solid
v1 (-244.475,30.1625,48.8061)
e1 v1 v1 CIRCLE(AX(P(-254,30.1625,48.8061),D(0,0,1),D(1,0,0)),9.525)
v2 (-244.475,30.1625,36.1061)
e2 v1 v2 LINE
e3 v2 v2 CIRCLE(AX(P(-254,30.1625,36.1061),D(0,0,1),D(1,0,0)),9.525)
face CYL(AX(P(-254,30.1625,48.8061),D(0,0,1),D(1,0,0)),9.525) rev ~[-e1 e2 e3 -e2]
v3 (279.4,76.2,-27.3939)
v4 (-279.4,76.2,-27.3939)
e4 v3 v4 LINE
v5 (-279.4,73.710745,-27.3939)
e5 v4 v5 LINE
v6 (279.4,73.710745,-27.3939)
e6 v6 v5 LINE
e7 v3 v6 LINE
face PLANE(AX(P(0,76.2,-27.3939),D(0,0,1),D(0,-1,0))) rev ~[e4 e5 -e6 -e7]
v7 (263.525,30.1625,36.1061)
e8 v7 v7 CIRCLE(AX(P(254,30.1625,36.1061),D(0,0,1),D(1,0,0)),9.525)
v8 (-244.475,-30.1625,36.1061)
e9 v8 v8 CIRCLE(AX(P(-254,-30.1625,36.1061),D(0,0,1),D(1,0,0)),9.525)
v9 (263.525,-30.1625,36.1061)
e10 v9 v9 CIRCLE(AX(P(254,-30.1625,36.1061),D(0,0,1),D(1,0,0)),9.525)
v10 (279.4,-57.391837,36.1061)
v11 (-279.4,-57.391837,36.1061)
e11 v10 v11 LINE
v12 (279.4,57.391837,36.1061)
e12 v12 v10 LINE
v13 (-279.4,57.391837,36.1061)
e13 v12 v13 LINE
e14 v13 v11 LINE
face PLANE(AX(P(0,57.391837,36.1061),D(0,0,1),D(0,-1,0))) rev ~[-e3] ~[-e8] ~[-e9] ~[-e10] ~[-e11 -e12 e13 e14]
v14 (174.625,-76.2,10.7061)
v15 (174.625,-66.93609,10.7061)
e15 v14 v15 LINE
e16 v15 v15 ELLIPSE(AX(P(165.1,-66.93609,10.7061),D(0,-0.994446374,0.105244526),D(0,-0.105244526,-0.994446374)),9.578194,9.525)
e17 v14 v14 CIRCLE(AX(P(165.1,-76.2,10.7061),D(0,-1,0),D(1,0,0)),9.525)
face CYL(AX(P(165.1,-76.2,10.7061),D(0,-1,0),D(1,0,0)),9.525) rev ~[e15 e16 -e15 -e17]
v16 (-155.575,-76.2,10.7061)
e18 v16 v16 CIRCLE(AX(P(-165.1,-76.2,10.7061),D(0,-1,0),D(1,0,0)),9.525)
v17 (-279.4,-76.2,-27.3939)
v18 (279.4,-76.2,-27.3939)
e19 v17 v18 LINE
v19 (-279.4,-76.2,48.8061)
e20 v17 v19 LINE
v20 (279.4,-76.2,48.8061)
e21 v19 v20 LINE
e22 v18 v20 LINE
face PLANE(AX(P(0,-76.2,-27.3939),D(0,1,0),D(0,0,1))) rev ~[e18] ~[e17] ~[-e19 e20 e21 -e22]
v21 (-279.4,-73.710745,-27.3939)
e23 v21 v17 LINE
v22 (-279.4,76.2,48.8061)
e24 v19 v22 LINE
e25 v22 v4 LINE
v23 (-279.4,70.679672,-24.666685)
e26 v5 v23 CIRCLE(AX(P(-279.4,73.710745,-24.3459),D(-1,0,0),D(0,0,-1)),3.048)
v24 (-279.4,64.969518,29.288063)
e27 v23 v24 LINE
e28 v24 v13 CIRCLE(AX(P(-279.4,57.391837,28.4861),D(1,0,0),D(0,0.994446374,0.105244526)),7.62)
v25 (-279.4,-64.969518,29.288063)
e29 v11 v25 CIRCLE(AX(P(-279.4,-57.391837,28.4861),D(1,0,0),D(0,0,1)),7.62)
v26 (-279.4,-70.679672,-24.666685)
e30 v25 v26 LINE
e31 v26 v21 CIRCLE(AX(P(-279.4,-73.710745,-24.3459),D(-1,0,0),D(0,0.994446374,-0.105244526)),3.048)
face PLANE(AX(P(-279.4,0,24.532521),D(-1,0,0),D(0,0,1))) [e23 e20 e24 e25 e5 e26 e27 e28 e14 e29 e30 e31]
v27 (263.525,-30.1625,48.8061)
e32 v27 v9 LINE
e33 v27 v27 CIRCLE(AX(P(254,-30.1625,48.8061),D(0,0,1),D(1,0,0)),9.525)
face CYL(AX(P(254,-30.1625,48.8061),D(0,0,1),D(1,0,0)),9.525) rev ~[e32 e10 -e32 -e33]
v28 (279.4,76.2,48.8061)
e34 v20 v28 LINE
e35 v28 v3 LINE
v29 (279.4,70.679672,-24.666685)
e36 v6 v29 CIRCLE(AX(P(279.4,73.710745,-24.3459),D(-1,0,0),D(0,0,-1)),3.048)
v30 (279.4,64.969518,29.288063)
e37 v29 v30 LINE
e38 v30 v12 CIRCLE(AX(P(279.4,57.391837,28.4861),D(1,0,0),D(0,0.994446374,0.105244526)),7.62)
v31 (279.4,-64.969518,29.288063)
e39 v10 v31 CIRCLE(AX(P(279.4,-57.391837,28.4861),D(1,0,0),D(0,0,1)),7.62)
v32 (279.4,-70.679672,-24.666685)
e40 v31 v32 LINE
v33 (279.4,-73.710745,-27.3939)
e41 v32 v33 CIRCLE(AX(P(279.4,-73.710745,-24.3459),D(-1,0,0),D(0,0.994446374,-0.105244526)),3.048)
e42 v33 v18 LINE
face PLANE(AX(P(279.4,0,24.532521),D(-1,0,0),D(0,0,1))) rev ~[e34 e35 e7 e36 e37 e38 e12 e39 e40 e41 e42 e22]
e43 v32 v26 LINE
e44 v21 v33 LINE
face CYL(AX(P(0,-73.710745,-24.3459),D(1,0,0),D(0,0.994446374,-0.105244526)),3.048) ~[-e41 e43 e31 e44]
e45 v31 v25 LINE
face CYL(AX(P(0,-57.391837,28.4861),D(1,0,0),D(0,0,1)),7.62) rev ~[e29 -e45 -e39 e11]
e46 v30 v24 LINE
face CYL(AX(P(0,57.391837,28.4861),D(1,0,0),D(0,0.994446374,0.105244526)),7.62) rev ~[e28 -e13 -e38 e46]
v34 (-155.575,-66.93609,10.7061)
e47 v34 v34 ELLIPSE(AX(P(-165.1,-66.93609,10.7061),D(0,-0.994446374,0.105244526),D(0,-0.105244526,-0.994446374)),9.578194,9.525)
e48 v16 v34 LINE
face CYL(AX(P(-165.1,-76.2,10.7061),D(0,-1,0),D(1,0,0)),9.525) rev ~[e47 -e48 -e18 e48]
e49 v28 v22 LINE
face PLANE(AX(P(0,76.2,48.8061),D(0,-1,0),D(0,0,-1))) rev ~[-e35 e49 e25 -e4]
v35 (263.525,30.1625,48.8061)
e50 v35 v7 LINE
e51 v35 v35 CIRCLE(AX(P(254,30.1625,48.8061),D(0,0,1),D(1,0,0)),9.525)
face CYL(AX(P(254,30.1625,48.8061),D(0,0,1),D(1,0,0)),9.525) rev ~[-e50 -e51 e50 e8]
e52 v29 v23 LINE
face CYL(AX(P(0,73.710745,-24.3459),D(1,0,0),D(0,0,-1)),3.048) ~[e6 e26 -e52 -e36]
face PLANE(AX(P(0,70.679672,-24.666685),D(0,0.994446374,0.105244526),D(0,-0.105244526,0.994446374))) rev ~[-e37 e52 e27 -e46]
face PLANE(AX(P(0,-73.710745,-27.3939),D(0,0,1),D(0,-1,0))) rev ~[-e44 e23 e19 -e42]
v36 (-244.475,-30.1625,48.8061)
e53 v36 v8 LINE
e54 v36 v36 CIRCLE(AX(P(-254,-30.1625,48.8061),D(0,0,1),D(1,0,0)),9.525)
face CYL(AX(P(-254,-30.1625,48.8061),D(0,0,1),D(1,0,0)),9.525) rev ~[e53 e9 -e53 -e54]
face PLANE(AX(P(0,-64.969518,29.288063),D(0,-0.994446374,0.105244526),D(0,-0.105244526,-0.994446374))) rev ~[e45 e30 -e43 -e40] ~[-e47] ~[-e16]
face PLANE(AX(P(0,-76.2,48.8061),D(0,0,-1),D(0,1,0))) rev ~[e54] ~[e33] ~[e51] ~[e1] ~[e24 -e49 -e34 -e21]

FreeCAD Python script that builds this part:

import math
import FreeCAD as App
import Part
import Sketcher
Q = App.Units.Quantity

doc = App.newDocument("Part")
body = doc.addObject("PartDesign::Body", "Body")

sketch1 = body.newObject("Sketcher::SketchObject", "Sketch")
sketch1.AttachmentSupport = (doc.getObject("YZ_Plane"), [""])
sketch1.MapMode = "FlatFace"
sketch1.addGeometry(Part.LineSegment(App.Vector(76.2, 48.8, 0), App.Vector(-76.2, 48.8, 0)), False)
sketch1.addGeometry(Part.LineSegment(App.Vector(-76.2, 48.8, 0), App.Vector(-76.2, -27.4, 0)), False)
sketch1.addGeometry(Part.LineSegment(App.Vector(-76.2, -27.4, 0), App.Vector(-73.7, -27.4, 0)), False)
sketch1.addGeometry(Part.ArcOfCircle(Part.Circle(App.Vector(-73.7, -24.3, 0), App.Vector(0, 0, 1), 3), math.radians(-90), math.radians(-6)), False)
sketch1.addGeometry(Part.LineSegment(App.Vector(-70.7, -24.7, 0), App.Vector(-65, 29.3, 0)), False)
sketch1.addGeometry(Part.ArcOfCircle(Part.Circle(App.Vector(-57.4, 28.5, 0), App.Vector(0, 0, 1), 7.6), math.radians(90), math.radians(174)), False)
sketch1.addGeometry(Part.LineSegment(App.Vector(-57.4, 36.1, 0), App.Vector(57.4, 36.1, 0)), False)
sketch1.addGeometry(Part.ArcOfCircle(Part.Circle(App.Vector(57.4, 28.5, 0), App.Vector(0, 0, 1), 7.6), math.radians(6), math.radians(90)), False)
sketch1.addGeometry(Part.LineSegment(App.Vector(65, 29.3, 0), App.Vector(70.7, -24.7, 0)), False)
sketch1.addGeometry(Part.ArcOfCircle(Part.Circle(App.Vector(73.7, -24.3, 0), App.Vector(0, 0, 1), 3), math.radians(-174), math.radians(-90)), False)
sketch1.addGeometry(Part.LineSegment(App.Vector(73.7, -27.4, 0), App.Vector(76.2, -27.4, 0)), False)
sketch1.addGeometry(Part.LineSegment(App.Vector(76.2, -27.4, 0), App.Vector(76.2, 48.8, 0)), False)
sketch1.addConstraint(Sketcher.Constraint("Coincident", 0, 2, 1, 1))
sketch1.addConstraint(Sketcher.Constraint("Coincident", 1, 2, 2, 1))
sketch1.addConstraint(Sketcher.Constraint("Tangent", 2, 2, 3, 1))
sketch1.addConstraint(Sketcher.Constraint("Tangent", 3, 2, 4, 1))
sketch1.addConstraint(Sketcher.Constraint("Tangent", 4, 2, 5, 2))
sketch1.addConstraint(Sketcher.Constraint("Tangent", 5, 1, 6, 1))
sketch1.addConstraint(Sketcher.Constraint("Tangent", 6, 2, 7, 2))
sketch1.addConstraint(Sketcher.Constraint("Tangent", 7, 1, 8, 1))
sketch1.addConstraint(Sketcher.Constraint("Tangent", 8, 2, 9, 1))
sketch1.addConstraint(Sketcher.Constraint("Tangent", 9, 2, 10, 1))
sketch1.addConstraint(Sketcher.Constraint("Coincident", 10, 2, 11, 1))
sketch1.addConstraint(Sketcher.Constraint("Coincident", 11, 2, 0, 1))
sketch1.addConstraint(Sketcher.Constraint("Horizontal", 0))
sketch1.addConstraint(Sketcher.Constraint("Vertical", 1))
sketch1.addConstraint(Sketcher.Constraint("Horizontal", 2))
sketch1.addConstraint(Sketcher.Constraint("Horizontal", 6))
sketch1.addConstraint(Sketcher.Constraint("Horizontal", 10))
sketch1.addConstraint(Sketcher.Constraint("Vertical", 11))
sketch1.addConstraint(Sketcher.Constraint("Equal", 5, 7))
sketch1.addConstraint(Sketcher.Constraint("Equal", 3, 9))
sketch1.addConstraint(Sketcher.Constraint("Symmetric", 3, 3, 9, 3, -2))
sketch1.addConstraint(Sketcher.Constraint("Horizontal", 4, 2, 7, 1))
sketch1.addConstraint(Sketcher.Constraint("Equal", 2, 10))
sketch1.addConstraint(Sketcher.Constraint("Radius", 5, Q("0.3 in")))
sketch1.addConstraint(Sketcher.Constraint("DistanceX", 0, 2, 0, 1, Q("6 in")))
sketch1.addConstraint(Sketcher.Constraint("DistanceY", 1, 2, 1, 1, Q("3 in")))
sketch1.addConstraint(Sketcher.Constraint("Radius", 3, Q("0.12 in")))
sketch1.addConstraint(Sketcher.Constraint("DistanceY", 5, 3, 0, 2, Q("0.8 in")))
sketch1.addConstraint(Sketcher.Constraint("DistanceY", 3, 3, -1, 1, Q("0.9585 in")))
sketch1.addConstraint(Sketcher.Constraint("DistanceX", 2, 1, 2, 2, Q("2.489255 mm")))
sketch1.addConstraint(Sketcher.Constraint("DistanceX", 6, 1, 6, 2, Q("114.783673 mm")))
pad1 = body.newObject("PartDesign::Pad", "Pad")
pad1.Profile = sketch1
pad1.Length = Q("22 in")
pad1.Midplane = True

sketch2 = body.newObject("Sketcher::SketchObject", "Sketch001")
sketch2.AttachmentSupport = (doc.getObject("XY_Plane"), [""])
sketch2.MapMode = "FlatFace"
sketch2.AttachmentOffset = App.Placement(App.Vector(0, 0, 1.9215 * 25.4), App.Rotation())
sketch2.addGeometry(Part.Circle(App.Vector(-254, 30, 0), App.Vector(0, 0, 1), 10), False)
sketch2.addConstraint(Sketcher.Constraint("Diameter", 0, Q("0.75 in")))
sketch2.addConstraint(Sketcher.Constraint("DistanceX", 0, 3, -1, 1, Q("10 in")))
sketch2.addConstraint(Sketcher.Constraint("DistanceY", -1, 1, 0, 3, Q("1.1875 in")))
pocket1 = body.newObject("PartDesign::Pocket", "Pocket")
pocket1.Profile = sketch2
pocket1.Type = "UpToFirst"

sketch3 = body.newObject("Sketcher::SketchObject", "Sketch002")
sketch3.AttachmentSupport = (doc.getObject("XY_Plane"), [""])
sketch3.MapMode = "FlatFace"
sketch3.AttachmentOffset = App.Placement(App.Vector(0, 0, 1.9215 * 25.4), App.Rotation())
sketch3.addGeometry(Part.Circle(App.Vector(-254, -30, 0), App.Vector(0, 0, 1), 10), False)
sketch3.addConstraint(Sketcher.Constraint("Diameter", 0, Q("0.75 in")))
sketch3.addConstraint(Sketcher.Constraint("DistanceX", 0, 3, -1, 1, Q("10 in")))
sketch3.addConstraint(Sketcher.Constraint("DistanceY", 0, 3, -1, 1, Q("1.1875 in")))
pocket2 = body.newObject("PartDesign::Pocket", "Pocket001")
pocket2.Profile = sketch3
pocket2.Type = "UpToFirst"

sketch4 = body.newObject("Sketcher::SketchObject", "Sketch003")
sketch4.AttachmentSupport = (doc.getObject("XY_Plane"), [""])
sketch4.MapMode = "FlatFace"
sketch4.AttachmentOffset = App.Placement(App.Vector(0, 0, 1.9215 * 25.4), App.Rotation())
sketch4.addGeometry(Part.Circle(App.Vector(254, -30, 0), App.Vector(0, 0, 1), 10), False)
sketch4.addConstraint(Sketcher.Constraint("Diameter", 0, Q("0.75 in")))
sketch4.addConstraint(Sketcher.Constraint("DistanceX", -1, 1, 0, 3, Q("10 in")))
sketch4.addConstraint(Sketcher.Constraint("DistanceY", 0, 3, -1, 1, Q("1.1875 in")))
pocket3 = body.newObject("PartDesign::Pocket", "Pocket002")
pocket3.Profile = sketch4
pocket3.Type = "UpToFirst"

sketch5 = body.newObject("Sketcher::SketchObject", "Sketch004")
sketch5.AttachmentSupport = (doc.getObject("XY_Plane"), [""])
sketch5.MapMode = "FlatFace"
sketch5.AttachmentOffset = App.Placement(App.Vector(0, 0, 1.9215 * 25.4), App.Rotation())
sketch5.addGeometry(Part.Circle(App.Vector(254, 30, 0), App.Vector(0, 0, 1), 10), False)
sketch5.addConstraint(Sketcher.Constraint("Diameter", 0, Q("0.75 in")))
sketch5.addConstraint(Sketcher.Constraint("DistanceX", -1, 1, 0, 3, Q("10 in")))
sketch5.addConstraint(Sketcher.Constraint("DistanceY", -1, 1, 0, 3, Q("1.1875 in")))
pocket4 = body.newObject("PartDesign::Pocket", "Pocket003")
pocket4.Profile = sketch5
pocket4.Type = "UpToFirst"

sketch6 = body.newObject("Sketcher::SketchObject", "Sketch005")
sketch6.AttachmentSupport = (doc.getObject("XZ_Plane"), [""])
sketch6.MapMode = "FlatFace"
sketch6.AttachmentOffset = App.Placement(App.Vector(0, 0, 3 * 25.4), App.Rotation())
sketch6.addGeometry(Part.Circle(App.Vector(-165, 11, 0), App.Vector(0, 0, 1), 10), False)
sketch6.addConstraint(Sketcher.Constraint("Diameter", 0, Q("0.75 in")))
sketch6.addConstraint(Sketcher.Constraint("DistanceX", 0, 3, -1, 1, Q("6.5 in")))
sketch6.addConstraint(Sketcher.Constraint("DistanceY", -1, 1, 0, 3, Q("0.4215 in")))
pocket5 = body.newObject("PartDesign::Pocket", "Pocket004")
pocket5.Profile = sketch6
pocket5.Type = "UpToFirst"

sketch7 = body.newObject("Sketcher::SketchObject", "Sketch006")
sketch7.AttachmentSupport = (doc.getObject("XZ_Plane"), [""])
sketch7.MapMode = "FlatFace"
sketch7.AttachmentOffset = App.Placement(App.Vector(0, 0, 3 * 25.4), App.Rotation())
sketch7.addGeometry(Part.Circle(App.Vector(165, 11, 0), App.Vector(0, 0, 1), 10), False)
sketch7.addConstraint(Sketcher.Constraint("Diameter", 0, Q("0.75 in")))
sketch7.addConstraint(Sketcher.Constraint("DistanceX", -1, 1, 0, 3, Q("6.5 in")))
sketch7.addConstraint(Sketcher.Constraint("DistanceY", -1, 1, 0, 3, Q("0.4215 in")))
pocket6 = body.newObject("PartDesign::Pocket", "Pocket005")
pocket6.Profile = sketch7
pocket6.Type = "UpToFirst"

doc.recompute()
